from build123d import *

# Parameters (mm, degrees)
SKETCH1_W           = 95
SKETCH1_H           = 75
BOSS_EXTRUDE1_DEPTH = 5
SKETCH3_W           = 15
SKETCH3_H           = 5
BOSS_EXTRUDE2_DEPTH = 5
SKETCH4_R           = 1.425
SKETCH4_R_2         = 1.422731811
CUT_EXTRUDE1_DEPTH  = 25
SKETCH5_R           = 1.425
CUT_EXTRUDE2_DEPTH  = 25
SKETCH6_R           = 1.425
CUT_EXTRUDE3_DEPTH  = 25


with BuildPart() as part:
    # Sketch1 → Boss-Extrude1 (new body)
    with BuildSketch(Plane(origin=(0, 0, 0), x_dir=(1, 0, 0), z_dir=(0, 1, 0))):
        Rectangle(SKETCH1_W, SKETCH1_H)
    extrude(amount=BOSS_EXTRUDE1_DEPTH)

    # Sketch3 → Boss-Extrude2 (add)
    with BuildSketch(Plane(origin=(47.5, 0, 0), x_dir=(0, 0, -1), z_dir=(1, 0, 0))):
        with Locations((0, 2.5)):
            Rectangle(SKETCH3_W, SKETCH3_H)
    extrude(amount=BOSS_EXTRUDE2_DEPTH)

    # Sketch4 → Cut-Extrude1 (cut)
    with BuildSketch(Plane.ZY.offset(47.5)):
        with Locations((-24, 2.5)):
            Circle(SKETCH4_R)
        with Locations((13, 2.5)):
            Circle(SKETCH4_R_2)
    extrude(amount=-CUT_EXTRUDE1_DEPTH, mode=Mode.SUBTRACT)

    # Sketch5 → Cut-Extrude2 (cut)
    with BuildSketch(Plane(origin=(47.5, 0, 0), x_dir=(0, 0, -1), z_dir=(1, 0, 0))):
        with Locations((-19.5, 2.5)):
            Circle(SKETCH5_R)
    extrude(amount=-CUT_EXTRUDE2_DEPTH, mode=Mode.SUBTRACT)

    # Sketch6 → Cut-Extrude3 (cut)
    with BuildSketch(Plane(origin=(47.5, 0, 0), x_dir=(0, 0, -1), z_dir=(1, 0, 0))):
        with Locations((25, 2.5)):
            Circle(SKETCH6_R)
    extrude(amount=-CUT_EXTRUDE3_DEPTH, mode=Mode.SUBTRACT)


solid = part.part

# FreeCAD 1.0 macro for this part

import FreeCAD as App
import Part
import Sketcher

V = App.Vector

doc = App.newDocument("Part")
params = doc.addObject("Spreadsheet::Sheet", "Params")
for row, (alias, value) in enumerate([
    ("sketch1_width", "95 mm"),
    ("sketch1_height", "75 mm"),
    ("pad1_length", "5 mm"),
    ("sketch2_width", "5 mm"),
    ("sketch2_height", "15 mm"),
    ("pad2_length", "5 mm"),
    ("sketch3_diameter", "2.85 mm"),
    ("pocket1_length", "25 mm"),
    ("sketch4_diameter", "2.85 mm"),
    ("pocket2_length", "25 mm"),
    ("sketch5_diameter", "2.85 mm"),
    ("pocket3_length", "25 mm"),
], start=1):
    params.set(f"A{row}", alias)
    params.set(f"B{row}", "=" + value)
    params.setAlias(f"B{row}", alias)

body = doc.addObject("PartDesign::Body", "Body")

sketch1 = body.newObject("Sketcher::SketchObject", "Sketch")
sketch1.AttachmentSupport = (doc.getObject("XZ_Plane"), [""])
sketch1.MapMode = "FlatFace"
sketch1.addGeometry([
    Part.LineSegment(V(-48, -38, 0), V(-48, 38, 0)),
    Part.LineSegment(V(-48, 38, 0), V(48, 38, 0)),
    Part.LineSegment(V(48, 38, 0), V(48, -38, 0)),
    Part.LineSegment(V(48, -38, 0), V(-48, -38, 0)),
], False)
sketch1.addConstraint([
    Sketcher.Constraint("Coincident", 0, 2, 1, 1),
    Sketcher.Constraint("Coincident", 1, 2, 2, 1),
    Sketcher.Constraint("Coincident", 2, 2, 3, 1),
    Sketcher.Constraint("Coincident", 3, 2, 0, 1),
    Sketcher.Constraint("Vertical", 0),
    Sketcher.Constraint("Horizontal", 1),
    Sketcher.Constraint("Vertical", 2),
    Sketcher.Constraint("Horizontal", 3),
    Sketcher.Constraint("Symmetric", 0, 2, 2, 2, -1, 1),
    Sketcher.Constraint("DistanceX", 1, 1, 1, 2, 95.0),
    Sketcher.Constraint("DistanceY", 0, 1, 0, 2, 75.0),
])
sketch1.setExpression("Constraints[9]", "Params.sketch1_width")
sketch1.setExpression("Constraints[10]", "Params.sketch1_height")
pad1 = body.newObject("PartDesign::Pad", "Pad")
pad1.Profile = sketch1
pad1.setExpression("Length", "Params.pad1_length")
pad1.Reversed = True

sketch2 = body.newObject("Sketcher::SketchObject", "Sketch001")
sketch2.AttachmentSupport = (doc.getObject("YZ_Plane"), [""])
sketch2.MapMode = "FlatFace"
sketch2.AttachmentOffset = App.Placement(V(0, 0, 47.5), App.Rotation())
sketch2.addGeometry([
    Part.LineSegment(V(5, 8, 0), V(0, 8, 0)),
    Part.LineSegment(V(0, 8, 0), V(0, -8, 0)),
    Part.LineSegment(V(0, -8, 0), V(5, -8, 0)),
    Part.LineSegment(V(5, -8, 0), V(5, 8, 0)),
], False)
sketch2.addConstraint([
    Sketcher.Constraint("Coincident", 0, 2, 1, 1),
    Sketcher.Constraint("Coincident", 1, 2, 2, 1),
    Sketcher.Constraint("Coincident", 2, 2, 3, 1),
    Sketcher.Constraint("Coincident", 3, 2, 0, 1),
    Sketcher.Constraint("Horizontal", 0),
    Sketcher.Constraint("Vertical", 1),
    Sketcher.Constraint("Horizontal", 2),
    Sketcher.Constraint("Vertical", 3),
    Sketcher.Constraint("Symmetric", 0, 2, 1, 2, -1, 1),
    Sketcher.Constraint("DistanceX", 0, 2, 0, 1, 5.0),
    Sketcher.Constraint("DistanceY", 1, 2, 1, 1, 15.0),
])
sketch2.setExpression("Constraints[9]", "Params.sketch2_width")
sketch2.setExpression("Constraints[10]", "Params.sketch2_height")
pad2 = body.newObject("PartDesign::Pad", "Pad001")
pad2.Profile = sketch2
pad2.setExpression("Length", "Params.pad2_length")

sketch3 = body.newObject("Sketcher::SketchObject", "Sketch002")
sketch3.AttachmentSupport = (doc.getObject("YZ_Plane"), [""])
sketch3.MapMode = "FlatFace"
sketch3.AttachmentOffset = App.Placement(V(0, 0, -47.5), App.Rotation())
sketch3.addGeometry([
    Part.Circle(V(2.5, -24, 0), V(0, 0, 1), 1.4),
    Part.Circle(V(2.5, 13, 0), V(0, 0, 1), 1.4),
], False)
sketch3.addConstraint([
    Sketcher.Constraint("Vertical", 0, 3, 1, 3),
    Sketcher.Constraint("Diameter", 0, 2.85),
    Sketcher.Constraint("DistanceY", 0, 3, -1, 1, 24.0),
    Sketcher.Constraint("DistanceY", -1, 1, 1, 3, 13.0),
    Sketcher.Constraint("DistanceX", -1, 1, 0, 3, 2.5),
    Sketcher.Constraint("Diameter", 1, 2.845464),
])
sketch3.setExpression("Constraints[1]", "Params.sketch3_diameter")
pocket1 = body.newObject("PartDesign::Pocket", "Pocket")
pocket1.Profile = sketch3
pocket1.setExpression("Length", "Params.pocket1_length")
pocket1.Reversed = True

sketch4 = body.newObject("Sketcher::SketchObject", "Sketch003")
sketch4.AttachmentSupport = (doc.getObject("YZ_Plane"), [""])
sketch4.MapMode = "FlatFace"
sketch4.AttachmentOffset = App.Placement(V(0, 0, 47.5), App.Rotation())
sketch4.addGeometry(Part.Circle(V(2.5, 19.5, 0), V(0, 0, 1), 1.4), False)
sketch4.addConstraint([
    Sketcher.Constraint("Diameter", 0, 2.85),
    Sketcher.Constraint("DistanceX", -1, 1, 0, 3, 2.5),
    Sketcher.Constraint("DistanceY", -1, 1, 0, 3, 19.5),
])
sketch4.setExpression("Constraints[0]", "Params.sketch4_diameter")
pocket2 = body.newObject("PartDesign::Pocket", "Pocket001")
pocket2.Profile = sketch4
pocket2.setExpression("Length", "Params.pocket2_length")

sketch5 = body.newObject("Sketcher::SketchObject", "Sketch004")
sketch5.AttachmentSupport = (doc.getObject("YZ_Plane"), [""])
sketch5.MapMode = "FlatFace"
sketch5.AttachmentOffset = App.Placement(V(0, 0, 47.5), App.Rotation())
sketch5.addGeometry(Part.Circle(V(2.5, -25, 0), V(0, 0, 1), 1.4), False)
sketch5.addConstraint([
    Sketcher.Constraint("Diameter", 0, 2.85),
    Sketcher.Constraint("DistanceY", 0, 3, -1, 1, 25.0),
    Sketcher.Constraint("DistanceX", -1, 1, 0, 3, 2.5),
])
sketch5.setExpression("Constraints[0]", "Params.sketch5_diameter")
pocket3 = body.newObject("PartDesign::Pocket", "Pocket002")
pocket3.Profile = sketch5
pocket3.setExpression("Length", "Params.pocket3_length")

doc.recompute()
